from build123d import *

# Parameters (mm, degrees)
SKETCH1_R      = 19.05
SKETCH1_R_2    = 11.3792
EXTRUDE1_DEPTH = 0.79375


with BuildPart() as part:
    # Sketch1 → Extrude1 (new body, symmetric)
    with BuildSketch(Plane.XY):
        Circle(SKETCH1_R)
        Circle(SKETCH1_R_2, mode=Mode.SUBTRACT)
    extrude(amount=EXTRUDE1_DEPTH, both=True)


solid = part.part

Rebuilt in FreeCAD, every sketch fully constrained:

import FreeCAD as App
import Part
import Sketcher
Q = App.Units.Quantity

doc = App.newDocument("Part")
body = doc.addObject("PartDesign::Body", "Body")

# Sketch on XY plane
sketch1 = doc.addObject("Sketcher::SketchObject", "Sketch")
body.addObject(sketch1)
sketch1.AttachmentSupport = (doc.XY_Plane, [""])
sketch1.MapMode = "FlatFace"
sketch1.addGeometry(Part.Circle(App.Vector(0, 0, 0), App.Vector(0, 0, 1), 19), False)
sketch1.addGeometry(Part.Circle(App.Vector(0, 0, 0), App.Vector(0, 0, 1), 11), False)
sketch1.addConstraint(Sketcher.Constraint("Coincident", 0, 3, -1, 1))
sketch1.addConstraint(Sketcher.Constraint("Coincident", 1, 3, -1, 1))
sketch1.addConstraint(Sketcher.Constraint("Diameter", 0, Q("1.5 in")))
sketch1.addConstraint(Sketcher.Constraint("Diameter", 1, Q("0.896 in")))
pad1 = doc.addObject("PartDesign::Pad", "Pad")
body.addObject(pad1)
pad1.Profile = sketch1
pad1.Length = Q("0.0625 in")
pad1.Midplane = True

doc.recompute()
